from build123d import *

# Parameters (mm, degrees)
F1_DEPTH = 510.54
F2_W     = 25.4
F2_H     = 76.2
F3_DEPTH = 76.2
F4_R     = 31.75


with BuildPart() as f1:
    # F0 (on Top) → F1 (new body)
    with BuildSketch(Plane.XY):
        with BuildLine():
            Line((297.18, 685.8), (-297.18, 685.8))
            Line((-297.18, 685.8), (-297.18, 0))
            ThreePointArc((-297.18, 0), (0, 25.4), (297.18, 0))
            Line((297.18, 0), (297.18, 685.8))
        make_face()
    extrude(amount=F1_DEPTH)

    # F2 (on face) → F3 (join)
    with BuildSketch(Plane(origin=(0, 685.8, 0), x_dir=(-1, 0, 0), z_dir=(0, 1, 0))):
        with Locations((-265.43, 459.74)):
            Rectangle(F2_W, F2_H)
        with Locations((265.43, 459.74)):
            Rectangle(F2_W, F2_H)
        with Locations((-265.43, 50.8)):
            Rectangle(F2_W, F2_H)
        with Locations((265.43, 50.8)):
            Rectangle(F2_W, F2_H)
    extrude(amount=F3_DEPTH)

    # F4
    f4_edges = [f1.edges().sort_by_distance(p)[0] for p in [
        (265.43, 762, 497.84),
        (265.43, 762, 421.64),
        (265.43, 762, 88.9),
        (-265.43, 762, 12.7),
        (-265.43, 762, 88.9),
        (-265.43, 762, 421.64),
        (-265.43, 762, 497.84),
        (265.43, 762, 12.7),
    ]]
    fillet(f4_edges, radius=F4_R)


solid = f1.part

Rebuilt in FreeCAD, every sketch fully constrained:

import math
import FreeCAD as App
import Part
import Sketcher

V = App.Vector
Q = App.Units.Quantity


def edges_at(feature, points):
    """Names of the edges that pass closest to the given points."""
    edges = feature.Shape.Edges
    near = lambda p: min(range(len(edges)), key=lambda i: edges[i].distToShape(Part.Vertex(*p))[0])
    return sorted({f"Edge{near(p) + 1}" for p in points})

doc = App.newDocument("Part")
body = doc.addObject("PartDesign::Body", "Body")

sketch1 = doc.addObject("Sketcher::SketchObject", "Sketch")
body.addObject(sketch1)
sketch1.AttachmentSupport = (doc.XY_Plane, [""])
sketch1.MapMode = "FlatFace"
sketch1.addGeometry([
    Part.LineSegment(V(297.18, 685.8, 0), V(-297.18, 685.8, 0)),
    Part.LineSegment(V(-297.18, 685.8, 0), V(-297.18, 0, 0)),
    Part.ArcOfCircle(Part.Circle(V(0, -1725.803, 0), V(0, 0, 1), 1751.203), math.radians(80.229595), math.radians(99.770405)),
    Part.LineSegment(V(297.18, 0, 0), V(297.18, 685.8, 0)),
], False)
sketch1.addConstraint([
    Sketcher.Constraint("Coincident", 0, 2, 1, 1),
    Sketcher.Constraint("Coincident", 1, 2, 2, 2),
    Sketcher.Constraint("Coincident", 2, 1, 3, 1),
    Sketcher.Constraint("Coincident", 3, 2, 0, 1),
    Sketcher.Constraint("Horizontal", 0),
    Sketcher.Constraint("Vertical", 1),
    Sketcher.Constraint("Vertical", 3),
    Sketcher.Constraint("PointOnObject", 2, 3, -2),
    Sketcher.Constraint("PointOnObject", 1, 2, -1),
    Sketcher.Constraint("Equal", 1, 3),
    Sketcher.Constraint("DistanceY", 1, 2, 1, 1, Q("27 in")),
    Sketcher.Constraint("DistanceX", 0, 2, 0, 1, Q("23.4 in")),
    Sketcher.Constraint("Radius", 2, Q("68.945 in")),
])
pad1 = doc.addObject("PartDesign::Pad", "Pad")
body.addObject(pad1)
pad1.Profile = sketch1
pad1.Length = Q("20.1 in")

sketch2 = doc.addObject("Sketcher::SketchObject", "Sketch001")
body.addObject(sketch2)
sketch2.AttachmentSupport = (doc.XZ_Plane, [""])
sketch2.MapMode = "FlatFace"
sketch2.AttachmentOffset = App.Placement(V(0, 0, -27 * 25.4), App.Rotation())
sketch2.addGeometry([
    Part.LineSegment(V(278.13, 497.84, 0), V(278.13, 421.64, 0)),
    Part.LineSegment(V(278.13, 421.64, 0), V(252.73, 421.64, 0)),
    Part.LineSegment(V(252.73, 421.64, 0), V(252.73, 497.84, 0)),
    Part.LineSegment(V(252.73, 497.84, 0), V(278.13, 497.84, 0)),
    Part.LineSegment(V(-252.73, 497.84, 0), V(-252.73, 421.64, 0)),
    Part.LineSegment(V(-252.73, 421.64, 0), V(-278.13, 421.64, 0)),
    Part.LineSegment(V(-278.13, 421.64, 0), V(-278.13, 497.84, 0)),
    Part.LineSegment(V(-278.13, 497.84, 0), V(-252.73, 497.84, 0)),
    Part.LineSegment(V(278.13, 88.9, 0), V(278.13, 12.7, 0)),
    Part.LineSegment(V(278.13, 12.7, 0), V(252.73, 12.7, 0)),
    Part.LineSegment(V(252.73, 12.7, 0), V(252.73, 88.9, 0)),
    Part.LineSegment(V(252.73, 88.9, 0), V(278.13, 88.9, 0)),
    Part.LineSegment(V(-252.73, 88.9, 0), V(-252.73, 12.7, 0)),
    Part.LineSegment(V(-252.73, 12.7, 0), V(-278.13, 12.7, 0)),
    Part.LineSegment(V(-278.13, 12.7, 0), V(-278.13, 88.9, 0)),
    Part.LineSegment(V(-278.13, 88.9, 0), V(-252.73, 88.9, 0)),
], False)
sketch2.addConstraint([
    Sketcher.Constraint("Coincident", 0, 2, 1, 1),
    Sketcher.Constraint("Coincident", 1, 2, 2, 1),
    Sketcher.Constraint("Coincident", 2, 2, 3, 1),
    Sketcher.Constraint("Coincident", 3, 2, 0, 1),
    Sketcher.Constraint("Coincident", 4, 2, 5, 1),
    Sketcher.Constraint("Coincident", 5, 2, 6, 1),
    Sketcher.Constraint("Coincident", 6, 2, 7, 1),
    Sketcher.Constraint("Coincident", 7, 2, 4, 1),
    Sketcher.Constraint("Coincident", 8, 2, 9, 1),
    Sketcher.Constraint("Coincident", 9, 2, 10, 1),
    Sketcher.Constraint("Coincident", 10, 2, 11, 1),
    Sketcher.Constraint("Coincident", 11, 2, 8, 1),
    Sketcher.Constraint("Coincident", 12, 2, 13, 1),
    Sketcher.Constraint("Coincident", 13, 2, 14, 1),
    Sketcher.Constraint("Coincident", 14, 2, 15, 1),
    Sketcher.Constraint("Coincident", 15, 2, 12, 1),
    Sketcher.Constraint("Vertical", 0),
    Sketcher.Constraint("Horizontal", 1),
    Sketcher.Constraint("Vertical", 2),
    Sketcher.Constraint("Horizontal", 3),
    Sketcher.Constraint("Vertical", 4),
    Sketcher.Constraint("Horizontal", 5),
    Sketcher.Constraint("Vertical", 6),
    Sketcher.Constraint("Horizontal", 7),
    Sketcher.Constraint("Vertical", 8),
    Sketcher.Constraint("Horizontal", 9),
    Sketcher.Constraint("Vertical", 10),
    Sketcher.Constraint("Horizontal", 11),
    Sketcher.Constraint("Vertical", 12),
    Sketcher.Constraint("Horizontal", 13),
    Sketcher.Constraint("Vertical", 14),
    Sketcher.Constraint("Horizontal", 15),
    Sketcher.Constraint("Symmetric", 1, 2, 4, 2, -2),
    Sketcher.Constraint("Symmetric", 3, 2, 6, 2, -2),
    Sketcher.Constraint("Symmetric", 9, 2, 12, 2, -2),
    Sketcher.Constraint("Symmetric", 11, 2, 14, 2, -2),
    Sketcher.Constraint("Vertical", 3, 2, 8, 2),
    Sketcher.Constraint("Vertical", 2, 2, 9, 2),
    Sketcher.Constraint("Equal", 6, 8),
    Sketcher.Constraint("DistanceX", 1, 2, 1, 1, Q("1 in")),
    Sketcher.Constraint("DistanceY", 0, 2, 0, 1, Q("3 in")),
    Sketcher.Constraint("DistanceY", -1, 1, 0, 2, Q("16.6 in")),
    Sketcher.Constraint("DistanceY", -1, 1, 8, 2, Q("0.5 in")),
    Sketcher.Constraint("DistanceX", 4, 2, 1, 2, Q("19.9 in")),
])
pad2 = doc.addObject("PartDesign::Pad", "Pad001")
body.addObject(pad2)
pad2.Profile = sketch2
pad2.Length = Q("3 in")
pad2.Reversed = True
doc.recompute()

fillet = doc.addObject("PartDesign::Fillet", "Fillet")
body.addObject(fillet)
fillet.Base = (pad2, edges_at(pad2, [
    (265.43, 762, 497.84),
    (265.43, 762, 421.64),
    (265.43, 762, 88.9),
    (-265.43, 762, 12.7),
    (-265.43, 762, 88.9),
    (-265.43, 762, 421.64),
    (-265.43, 762, 497.84),
    (265.43, 762, 12.7),
]))
fillet.Radius = Q("1.25 in")

doc.recompute()
